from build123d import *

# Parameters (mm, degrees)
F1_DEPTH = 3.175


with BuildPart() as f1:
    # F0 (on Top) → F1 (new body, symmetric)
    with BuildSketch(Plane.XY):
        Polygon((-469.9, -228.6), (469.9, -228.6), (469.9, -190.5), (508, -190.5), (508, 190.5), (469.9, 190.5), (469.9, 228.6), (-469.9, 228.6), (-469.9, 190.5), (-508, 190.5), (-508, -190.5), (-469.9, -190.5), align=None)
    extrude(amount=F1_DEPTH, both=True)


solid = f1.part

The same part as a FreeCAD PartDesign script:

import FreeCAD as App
import Part
import Sketcher
from FreeCAD import Vector
Q = App.Units.Quantity


def add_polygon(sketch, points):
    """Adds a closed chain of lines whose ends are joined by coincident constraints."""
    first, n = sketch.GeometryCount, len(points)
    for a, b in zip(points, points[1:] + points[:1]):
        sketch.addGeometry(Part.LineSegment(App.Vector(*a, 0), App.Vector(*b, 0)), False)
    for i in range(n):
        sketch.addConstraint(Sketcher.Constraint("Coincident", first + i, 2, first + (i + 1) % n, 1))

doc = App.newDocument("Part")
body = doc.addObject("PartDesign::Body", "Body")

sketch1 = body.newObject("Sketcher::SketchObject", "Sketch")
sketch1.AttachmentSupport = (doc.getObject("XY_Plane"), [""])
sketch1.MapMode = "FlatFace"
add_polygon(sketch1, [(-470, -229), (470, -229), (470, -190), (508, -190), (508, 190), (470, 190), (470, 229), (-470, 229), (-470, 190), (-508, 190), (-508, -190), (-470, -190)])
sketch1.addConstraint([
    Sketcher.Constraint("Horizontal", 0),
    Sketcher.Constraint("Vertical", 1),
    Sketcher.Constraint("Horizontal", 2),
    Sketcher.Constraint("Vertical", 3),
    Sketcher.Constraint("Horizontal", 4),
    Sketcher.Constraint("Vertical", 5),
    Sketcher.Constraint("Horizontal", 6),
    Sketcher.Constraint("Vertical", 7),
    Sketcher.Constraint("Horizontal", 8),
    Sketcher.Constraint("Vertical", 9),
    Sketcher.Constraint("Horizontal", 10),
    Sketcher.Constraint("Vertical", 11),
    Sketcher.Constraint("Symmetric", 0, 2, 6, 2, -1, 1),
    Sketcher.Constraint("Symmetric", 2, 2, 8, 2, -1, 1),
    Sketcher.Constraint("Symmetric", 4, 2, 10, 2, -1, 1),
    Sketcher.Constraint("Symmetric", 4, 2, 7, 2, -2),
    Sketcher.Constraint("Equal", 10, 1),
    Sketcher.Constraint("DistanceX", 0, 1, 0, 2, Q("37 in")),
    Sketcher.Constraint("DistanceY", 3, 1, 3, 2, Q("15 in")),
    Sketcher.Constraint("DistanceX", 2, 1, 2, 2, Q("1.5 in")),
])
pad1 = body.newObject("PartDesign::Pad", "Pad")
pad1.Profile = sketch1
pad1.Length = Q("0.25 in")
pad1.Midplane = True

doc.recompute()
